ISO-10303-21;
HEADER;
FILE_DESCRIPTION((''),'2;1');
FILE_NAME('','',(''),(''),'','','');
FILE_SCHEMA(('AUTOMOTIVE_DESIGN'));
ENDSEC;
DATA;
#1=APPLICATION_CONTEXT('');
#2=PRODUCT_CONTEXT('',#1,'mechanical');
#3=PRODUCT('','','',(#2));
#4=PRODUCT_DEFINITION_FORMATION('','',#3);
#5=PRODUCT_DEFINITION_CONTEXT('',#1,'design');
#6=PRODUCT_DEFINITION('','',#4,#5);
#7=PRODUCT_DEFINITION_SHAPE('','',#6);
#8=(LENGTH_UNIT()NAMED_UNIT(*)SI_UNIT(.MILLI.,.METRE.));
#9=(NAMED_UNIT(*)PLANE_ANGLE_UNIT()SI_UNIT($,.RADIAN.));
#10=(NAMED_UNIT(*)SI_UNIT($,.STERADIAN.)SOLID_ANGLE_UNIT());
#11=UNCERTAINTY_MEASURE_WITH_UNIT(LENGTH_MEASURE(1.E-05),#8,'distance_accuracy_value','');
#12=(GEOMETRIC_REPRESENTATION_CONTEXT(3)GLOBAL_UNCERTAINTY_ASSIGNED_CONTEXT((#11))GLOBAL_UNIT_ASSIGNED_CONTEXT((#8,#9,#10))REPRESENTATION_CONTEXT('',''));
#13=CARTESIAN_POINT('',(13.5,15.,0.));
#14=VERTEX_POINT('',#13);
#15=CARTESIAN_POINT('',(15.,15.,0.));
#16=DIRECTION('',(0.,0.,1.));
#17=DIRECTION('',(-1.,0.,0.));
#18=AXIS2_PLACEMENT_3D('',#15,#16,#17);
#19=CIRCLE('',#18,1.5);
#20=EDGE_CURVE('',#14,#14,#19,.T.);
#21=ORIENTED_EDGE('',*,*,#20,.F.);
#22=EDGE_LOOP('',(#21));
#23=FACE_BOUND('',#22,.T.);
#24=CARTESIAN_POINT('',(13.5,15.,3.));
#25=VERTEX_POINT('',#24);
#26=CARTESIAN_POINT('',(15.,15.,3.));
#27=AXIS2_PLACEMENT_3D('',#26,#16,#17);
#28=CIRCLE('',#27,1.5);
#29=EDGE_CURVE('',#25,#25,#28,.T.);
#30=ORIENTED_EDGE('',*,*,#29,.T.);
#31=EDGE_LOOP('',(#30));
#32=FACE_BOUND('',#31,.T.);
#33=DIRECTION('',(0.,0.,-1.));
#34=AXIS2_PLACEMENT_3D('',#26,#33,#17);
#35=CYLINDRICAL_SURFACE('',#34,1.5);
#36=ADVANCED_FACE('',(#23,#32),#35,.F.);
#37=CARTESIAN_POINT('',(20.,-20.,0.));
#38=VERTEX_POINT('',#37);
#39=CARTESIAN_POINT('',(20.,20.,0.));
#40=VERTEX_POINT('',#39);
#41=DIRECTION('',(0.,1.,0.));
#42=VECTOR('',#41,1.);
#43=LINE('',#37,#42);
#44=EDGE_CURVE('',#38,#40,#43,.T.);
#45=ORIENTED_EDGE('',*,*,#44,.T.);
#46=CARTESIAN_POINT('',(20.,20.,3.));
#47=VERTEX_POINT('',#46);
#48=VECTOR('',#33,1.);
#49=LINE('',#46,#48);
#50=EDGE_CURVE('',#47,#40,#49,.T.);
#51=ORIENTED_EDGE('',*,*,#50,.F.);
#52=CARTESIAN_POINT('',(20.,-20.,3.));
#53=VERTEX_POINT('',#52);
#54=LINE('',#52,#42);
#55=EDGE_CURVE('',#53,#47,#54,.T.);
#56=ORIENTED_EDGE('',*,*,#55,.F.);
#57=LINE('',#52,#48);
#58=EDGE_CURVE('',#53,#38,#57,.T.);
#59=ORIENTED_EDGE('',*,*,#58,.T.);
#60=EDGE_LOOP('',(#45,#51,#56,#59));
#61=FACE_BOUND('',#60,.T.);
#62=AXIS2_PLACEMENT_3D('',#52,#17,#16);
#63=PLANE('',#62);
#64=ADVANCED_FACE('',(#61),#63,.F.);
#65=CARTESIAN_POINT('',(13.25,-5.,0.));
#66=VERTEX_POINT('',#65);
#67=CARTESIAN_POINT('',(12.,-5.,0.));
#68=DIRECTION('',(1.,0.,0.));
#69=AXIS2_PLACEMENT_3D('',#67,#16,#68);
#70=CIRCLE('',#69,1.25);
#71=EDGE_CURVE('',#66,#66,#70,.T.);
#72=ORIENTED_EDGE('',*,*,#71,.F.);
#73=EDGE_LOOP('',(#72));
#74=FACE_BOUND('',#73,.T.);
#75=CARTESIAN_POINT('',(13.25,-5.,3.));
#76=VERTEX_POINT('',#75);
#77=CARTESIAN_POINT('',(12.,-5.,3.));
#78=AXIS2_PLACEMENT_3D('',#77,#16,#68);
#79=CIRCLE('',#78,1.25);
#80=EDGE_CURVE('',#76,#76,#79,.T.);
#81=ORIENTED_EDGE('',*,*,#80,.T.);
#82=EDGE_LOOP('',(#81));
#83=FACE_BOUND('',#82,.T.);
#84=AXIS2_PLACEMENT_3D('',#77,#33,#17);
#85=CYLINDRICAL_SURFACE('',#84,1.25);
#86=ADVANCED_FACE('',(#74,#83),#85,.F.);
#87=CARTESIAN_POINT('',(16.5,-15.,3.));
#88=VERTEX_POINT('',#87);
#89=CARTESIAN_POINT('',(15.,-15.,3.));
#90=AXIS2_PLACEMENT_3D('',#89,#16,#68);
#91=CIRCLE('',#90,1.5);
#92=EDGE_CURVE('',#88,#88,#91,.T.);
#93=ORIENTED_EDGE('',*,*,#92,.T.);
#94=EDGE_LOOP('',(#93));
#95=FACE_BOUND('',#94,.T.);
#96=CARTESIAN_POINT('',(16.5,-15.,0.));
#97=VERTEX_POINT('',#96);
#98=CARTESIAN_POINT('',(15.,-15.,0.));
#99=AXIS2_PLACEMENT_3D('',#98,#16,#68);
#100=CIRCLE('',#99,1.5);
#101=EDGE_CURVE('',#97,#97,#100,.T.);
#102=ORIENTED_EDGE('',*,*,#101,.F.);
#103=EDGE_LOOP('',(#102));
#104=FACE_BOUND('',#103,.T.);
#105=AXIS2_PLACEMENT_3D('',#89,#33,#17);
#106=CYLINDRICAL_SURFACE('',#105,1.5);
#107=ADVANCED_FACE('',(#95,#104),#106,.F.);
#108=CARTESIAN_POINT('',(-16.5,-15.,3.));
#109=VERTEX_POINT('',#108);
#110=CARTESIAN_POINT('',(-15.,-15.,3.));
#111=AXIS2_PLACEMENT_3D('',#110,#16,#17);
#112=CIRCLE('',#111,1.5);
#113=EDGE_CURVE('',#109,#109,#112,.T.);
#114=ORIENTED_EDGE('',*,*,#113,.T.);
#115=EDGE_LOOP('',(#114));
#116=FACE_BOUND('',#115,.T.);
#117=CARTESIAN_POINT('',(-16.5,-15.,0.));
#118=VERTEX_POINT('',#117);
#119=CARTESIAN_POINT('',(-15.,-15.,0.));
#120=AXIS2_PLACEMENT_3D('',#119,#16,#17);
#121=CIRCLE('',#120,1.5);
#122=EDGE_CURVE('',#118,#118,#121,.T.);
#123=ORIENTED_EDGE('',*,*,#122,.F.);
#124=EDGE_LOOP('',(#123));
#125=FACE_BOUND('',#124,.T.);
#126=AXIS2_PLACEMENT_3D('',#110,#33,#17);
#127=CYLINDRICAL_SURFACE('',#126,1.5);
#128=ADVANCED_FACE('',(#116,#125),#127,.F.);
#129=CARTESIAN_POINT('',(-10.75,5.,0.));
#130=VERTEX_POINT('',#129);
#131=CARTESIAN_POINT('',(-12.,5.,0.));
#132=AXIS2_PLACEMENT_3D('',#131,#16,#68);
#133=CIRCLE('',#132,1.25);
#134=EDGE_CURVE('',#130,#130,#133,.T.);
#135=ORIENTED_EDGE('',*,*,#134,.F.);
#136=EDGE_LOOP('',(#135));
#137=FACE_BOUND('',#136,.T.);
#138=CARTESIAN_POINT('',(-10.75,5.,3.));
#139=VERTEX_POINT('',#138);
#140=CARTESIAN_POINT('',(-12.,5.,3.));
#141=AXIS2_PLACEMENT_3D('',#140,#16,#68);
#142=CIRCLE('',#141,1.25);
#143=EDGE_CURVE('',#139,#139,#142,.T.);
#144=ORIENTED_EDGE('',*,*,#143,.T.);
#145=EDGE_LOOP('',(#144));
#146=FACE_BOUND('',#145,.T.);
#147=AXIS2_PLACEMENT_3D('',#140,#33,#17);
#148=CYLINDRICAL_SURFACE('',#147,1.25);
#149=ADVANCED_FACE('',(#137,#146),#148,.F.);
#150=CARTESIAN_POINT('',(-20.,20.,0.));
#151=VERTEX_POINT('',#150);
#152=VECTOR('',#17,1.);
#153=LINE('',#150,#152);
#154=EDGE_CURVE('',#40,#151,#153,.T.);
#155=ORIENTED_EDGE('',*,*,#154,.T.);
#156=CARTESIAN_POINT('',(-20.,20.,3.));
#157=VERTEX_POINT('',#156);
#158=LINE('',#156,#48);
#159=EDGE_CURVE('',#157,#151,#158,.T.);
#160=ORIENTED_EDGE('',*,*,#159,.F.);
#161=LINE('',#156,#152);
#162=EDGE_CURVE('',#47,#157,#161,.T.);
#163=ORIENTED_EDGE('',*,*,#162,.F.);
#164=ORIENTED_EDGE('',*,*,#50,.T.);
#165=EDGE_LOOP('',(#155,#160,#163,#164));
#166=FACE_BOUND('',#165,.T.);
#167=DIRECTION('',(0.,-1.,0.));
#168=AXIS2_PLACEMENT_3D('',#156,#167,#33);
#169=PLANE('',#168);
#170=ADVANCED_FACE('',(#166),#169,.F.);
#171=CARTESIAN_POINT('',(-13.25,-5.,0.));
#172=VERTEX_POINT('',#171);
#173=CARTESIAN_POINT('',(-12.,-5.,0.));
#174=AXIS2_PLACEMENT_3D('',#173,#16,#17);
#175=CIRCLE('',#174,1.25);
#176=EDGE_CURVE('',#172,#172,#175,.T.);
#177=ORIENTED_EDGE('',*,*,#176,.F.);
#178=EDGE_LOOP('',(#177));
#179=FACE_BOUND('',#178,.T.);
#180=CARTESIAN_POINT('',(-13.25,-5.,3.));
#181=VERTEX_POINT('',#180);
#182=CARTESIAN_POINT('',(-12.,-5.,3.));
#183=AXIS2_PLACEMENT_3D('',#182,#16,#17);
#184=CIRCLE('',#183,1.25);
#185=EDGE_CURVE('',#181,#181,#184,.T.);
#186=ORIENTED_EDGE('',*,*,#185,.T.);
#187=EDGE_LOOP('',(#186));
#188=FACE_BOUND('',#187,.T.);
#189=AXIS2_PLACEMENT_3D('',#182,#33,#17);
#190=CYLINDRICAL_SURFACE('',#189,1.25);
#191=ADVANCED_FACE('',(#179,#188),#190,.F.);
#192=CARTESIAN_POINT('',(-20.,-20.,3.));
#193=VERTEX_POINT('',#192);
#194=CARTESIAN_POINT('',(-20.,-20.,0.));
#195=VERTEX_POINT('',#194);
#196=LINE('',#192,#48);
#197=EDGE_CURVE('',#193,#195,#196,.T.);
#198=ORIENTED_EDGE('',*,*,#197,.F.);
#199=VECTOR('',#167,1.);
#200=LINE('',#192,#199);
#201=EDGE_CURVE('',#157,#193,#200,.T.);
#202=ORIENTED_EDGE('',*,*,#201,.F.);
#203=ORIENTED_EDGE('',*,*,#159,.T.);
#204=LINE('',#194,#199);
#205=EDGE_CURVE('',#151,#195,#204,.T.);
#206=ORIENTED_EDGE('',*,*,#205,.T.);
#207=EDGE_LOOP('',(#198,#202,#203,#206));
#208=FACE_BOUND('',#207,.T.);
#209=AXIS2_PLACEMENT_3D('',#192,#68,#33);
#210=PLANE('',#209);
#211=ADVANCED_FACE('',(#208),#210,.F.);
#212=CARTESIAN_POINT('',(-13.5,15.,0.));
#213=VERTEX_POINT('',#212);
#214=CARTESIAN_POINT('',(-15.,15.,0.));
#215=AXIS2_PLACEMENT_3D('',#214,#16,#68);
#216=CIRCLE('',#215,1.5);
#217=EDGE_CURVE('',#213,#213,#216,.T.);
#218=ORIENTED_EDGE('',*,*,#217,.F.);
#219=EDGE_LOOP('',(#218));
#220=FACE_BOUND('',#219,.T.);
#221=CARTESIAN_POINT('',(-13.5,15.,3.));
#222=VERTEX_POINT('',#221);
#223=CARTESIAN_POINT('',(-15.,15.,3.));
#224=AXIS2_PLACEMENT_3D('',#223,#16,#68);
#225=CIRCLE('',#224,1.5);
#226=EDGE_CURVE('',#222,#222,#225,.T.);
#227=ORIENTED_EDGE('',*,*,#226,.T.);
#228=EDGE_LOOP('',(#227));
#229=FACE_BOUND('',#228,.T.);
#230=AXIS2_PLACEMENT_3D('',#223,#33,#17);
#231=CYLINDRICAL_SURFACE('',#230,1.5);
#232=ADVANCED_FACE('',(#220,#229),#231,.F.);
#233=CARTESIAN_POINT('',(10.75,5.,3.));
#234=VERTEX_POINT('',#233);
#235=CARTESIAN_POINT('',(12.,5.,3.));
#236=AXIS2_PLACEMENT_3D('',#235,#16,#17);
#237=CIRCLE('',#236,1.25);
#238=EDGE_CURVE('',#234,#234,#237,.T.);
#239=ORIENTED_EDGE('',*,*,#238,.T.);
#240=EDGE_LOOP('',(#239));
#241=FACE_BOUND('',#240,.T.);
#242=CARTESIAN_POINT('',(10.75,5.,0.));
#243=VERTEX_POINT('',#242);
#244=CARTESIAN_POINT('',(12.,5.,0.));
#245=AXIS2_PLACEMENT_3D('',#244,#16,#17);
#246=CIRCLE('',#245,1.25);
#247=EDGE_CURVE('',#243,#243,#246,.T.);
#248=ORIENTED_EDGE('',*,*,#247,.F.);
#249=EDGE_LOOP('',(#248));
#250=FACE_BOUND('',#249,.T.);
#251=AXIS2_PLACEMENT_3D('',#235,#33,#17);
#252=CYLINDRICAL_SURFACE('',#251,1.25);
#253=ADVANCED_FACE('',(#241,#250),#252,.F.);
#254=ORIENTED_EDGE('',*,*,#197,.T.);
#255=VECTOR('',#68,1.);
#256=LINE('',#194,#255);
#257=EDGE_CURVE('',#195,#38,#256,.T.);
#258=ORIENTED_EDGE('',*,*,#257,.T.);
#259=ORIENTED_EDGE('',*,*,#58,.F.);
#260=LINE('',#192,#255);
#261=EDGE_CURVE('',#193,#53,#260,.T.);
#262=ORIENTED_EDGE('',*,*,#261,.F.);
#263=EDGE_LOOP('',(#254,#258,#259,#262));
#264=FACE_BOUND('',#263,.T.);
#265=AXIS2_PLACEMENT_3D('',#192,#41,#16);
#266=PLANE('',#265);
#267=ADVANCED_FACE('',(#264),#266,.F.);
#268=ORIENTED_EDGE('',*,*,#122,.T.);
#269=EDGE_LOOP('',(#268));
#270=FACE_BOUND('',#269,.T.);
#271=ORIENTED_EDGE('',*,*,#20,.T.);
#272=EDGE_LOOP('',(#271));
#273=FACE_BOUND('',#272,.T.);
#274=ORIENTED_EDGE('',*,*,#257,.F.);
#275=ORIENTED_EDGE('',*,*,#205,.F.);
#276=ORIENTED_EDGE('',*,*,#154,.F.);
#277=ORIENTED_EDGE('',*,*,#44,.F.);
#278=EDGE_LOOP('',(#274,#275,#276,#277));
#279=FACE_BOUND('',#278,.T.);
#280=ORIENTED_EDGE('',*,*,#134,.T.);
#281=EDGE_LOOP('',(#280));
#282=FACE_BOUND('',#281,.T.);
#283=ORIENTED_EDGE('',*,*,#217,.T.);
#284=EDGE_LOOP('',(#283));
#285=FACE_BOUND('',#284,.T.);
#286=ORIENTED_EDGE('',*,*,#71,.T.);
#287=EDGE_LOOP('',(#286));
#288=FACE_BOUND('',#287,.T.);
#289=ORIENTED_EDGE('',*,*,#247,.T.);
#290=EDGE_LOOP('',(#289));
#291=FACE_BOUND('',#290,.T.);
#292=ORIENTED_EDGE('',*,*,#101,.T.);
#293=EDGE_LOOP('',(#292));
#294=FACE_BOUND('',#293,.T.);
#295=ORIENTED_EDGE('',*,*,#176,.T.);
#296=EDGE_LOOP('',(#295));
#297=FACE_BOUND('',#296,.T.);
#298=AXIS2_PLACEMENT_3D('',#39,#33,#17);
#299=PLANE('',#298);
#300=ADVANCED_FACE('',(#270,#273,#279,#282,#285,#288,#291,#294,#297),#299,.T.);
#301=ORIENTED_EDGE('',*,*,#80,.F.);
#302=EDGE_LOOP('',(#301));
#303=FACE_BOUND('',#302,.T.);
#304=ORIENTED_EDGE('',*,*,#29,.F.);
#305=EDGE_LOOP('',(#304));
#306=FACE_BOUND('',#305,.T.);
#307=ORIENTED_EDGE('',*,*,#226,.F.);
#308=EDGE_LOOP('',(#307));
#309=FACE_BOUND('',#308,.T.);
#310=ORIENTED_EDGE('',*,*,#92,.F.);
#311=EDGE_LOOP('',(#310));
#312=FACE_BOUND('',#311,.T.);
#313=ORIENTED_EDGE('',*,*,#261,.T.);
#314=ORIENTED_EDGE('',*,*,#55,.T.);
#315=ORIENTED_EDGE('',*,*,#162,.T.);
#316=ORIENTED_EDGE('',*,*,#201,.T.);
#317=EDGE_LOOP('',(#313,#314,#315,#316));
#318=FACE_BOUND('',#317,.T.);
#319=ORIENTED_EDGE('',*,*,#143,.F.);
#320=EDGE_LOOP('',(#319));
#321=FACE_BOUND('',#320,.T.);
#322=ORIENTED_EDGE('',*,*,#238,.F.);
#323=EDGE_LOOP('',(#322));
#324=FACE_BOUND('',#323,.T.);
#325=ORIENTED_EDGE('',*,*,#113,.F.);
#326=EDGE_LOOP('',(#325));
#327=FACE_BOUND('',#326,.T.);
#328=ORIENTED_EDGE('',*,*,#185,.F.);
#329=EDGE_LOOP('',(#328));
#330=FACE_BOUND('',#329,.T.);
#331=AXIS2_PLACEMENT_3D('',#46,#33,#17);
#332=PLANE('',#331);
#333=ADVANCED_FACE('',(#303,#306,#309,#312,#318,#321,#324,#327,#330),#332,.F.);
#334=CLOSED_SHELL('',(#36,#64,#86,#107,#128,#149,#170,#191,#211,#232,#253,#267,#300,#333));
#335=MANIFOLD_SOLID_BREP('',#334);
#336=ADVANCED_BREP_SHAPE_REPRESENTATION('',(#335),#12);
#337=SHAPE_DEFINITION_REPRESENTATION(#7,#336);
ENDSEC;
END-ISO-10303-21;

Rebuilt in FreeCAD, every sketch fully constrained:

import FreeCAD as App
import Part
import Sketcher

V = App.Vector

doc = App.newDocument("Part")
params = doc.addObject("Spreadsheet::Sheet", "Params")
for row, (alias, value) in enumerate([
    ("sketch1_diameter", "3 mm"),
    ("sketch1_diameter2", "2.5 mm"),
    ("sketch1_width", "40 mm"),
    ("pad1_length", "3 mm"),
], start=1):
    params.set(f"A{row}", alias)
    params.set(f"B{row}", "=" + value)
    params.setAlias(f"B{row}", alias)

body = doc.addObject("PartDesign::Body", "Body")

sketch1 = body.newObject("Sketcher::SketchObject", "Sketch")
sketch1.AttachmentSupport = (doc.getObject("XY_Plane"), [""])
sketch1.MapMode = "FlatFace"
sketch1.addGeometry(Part.LineSegment(V(-20, 20, 0), V(-20, -20, 0)), False)
sketch1.addGeometry(Part.LineSegment(V(-20, -20, 0), V(20, -20, 0)), False)
sketch1.addGeometry(Part.LineSegment(V(20, -20, 0), V(20, 20, 0)), False)
sketch1.addGeometry(Part.LineSegment(V(20, 20, 0), V(-20, 20, 0)), False)
sketch1.addGeometry(Part.Circle(V(-15, -15, 0), V(0, 0, 1), 1.5), False)
sketch1.addGeometry(Part.Circle(V(-12, -5, 0), V(0, 0, 1), 1.2), False)
sketch1.addGeometry(Part.Circle(V(15, -15, 0), V(0, 0, 1), 1.5), False)
sketch1.addGeometry(Part.Circle(V(12, -5, 0), V(0, 0, 1), 1.2), False)
sketch1.addGeometry(Part.Circle(V(-12, 5, 0), V(0, 0, 1), 1.2), False)
sketch1.addGeometry(Part.Circle(V(-15, 15, 0), V(0, 0, 1), 1.5), False)
sketch1.addGeometry(Part.Circle(V(12, 5, 0), V(0, 0, 1), 1.2), False)
sketch1.addGeometry(Part.Circle(V(15, 15, 0), V(0, 0, 1), 1.5), False)
sketch1.addConstraint(Sketcher.Constraint("Coincident", 0, 2, 1, 1))
sketch1.addConstraint(Sketcher.Constraint("Coincident", 1, 2, 2, 1))
sketch1.addConstraint(Sketcher.Constraint("Coincident", 2, 2, 3, 1))
sketch1.addConstraint(Sketcher.Constraint("Coincident", 3, 2, 0, 1))
sketch1.addConstraint(Sketcher.Constraint("Vertical", 0))
sketch1.addConstraint(Sketcher.Constraint("Horizontal", 1))
sketch1.addConstraint(Sketcher.Constraint("Vertical", 2))
sketch1.addConstraint(Sketcher.Constraint("Horizontal", 3))
sketch1.addConstraint(Sketcher.Constraint("Equal", 4, 6))
sketch1.addConstraint(Sketcher.Constraint("Equal", 5, 7))
sketch1.addConstraint(Sketcher.Constraint("Equal", 7, 8))
sketch1.addConstraint(Sketcher.Constraint("Equal", 6, 9))
sketch1.addConstraint(Sketcher.Constraint("Equal", 8, 10))
sketch1.addConstraint(Sketcher.Constraint("Equal", 9, 11))
sketch1.addConstraint(Sketcher.Constraint("Symmetric", 7, 3, 8, 3, -1, 1))
sketch1.addConstraint(Sketcher.Constraint("Symmetric", 6, 3, 9, 3, -1, 1))
sketch1.addConstraint(Sketcher.Constraint("Symmetric", 5, 3, 10, 3, -1, 1))
sketch1.addConstraint(Sketcher.Constraint("Symmetric", 4, 3, 11, 3, -1, 1))
sketch1.addConstraint(Sketcher.Constraint("Symmetric", 0, 2, 2, 2, -1, 1))
sketch1.addConstraint(Sketcher.Constraint("Symmetric", 4, 3, 6, 3, -2))
sketch1.addConstraint(Sketcher.Constraint("Symmetric", 5, 3, 7, 3, -2))
sketch1.addConstraint(Sketcher.Constraint("Equal", 3, 0))
sketch1.addConstraint(Sketcher.Constraint("Diameter", 4, 3.0))
sketch1.addConstraint(Sketcher.Constraint("Diameter", 5, 2.5))
sketch1.addConstraint(Sketcher.Constraint("DistanceX", 1, 1, 1, 2, 40.0))
sketch1.addConstraint(Sketcher.Constraint("DistanceX", 4, 3, -1, 1, 15.0))
sketch1.addConstraint(Sketcher.Constraint("DistanceY", 4, 3, -1, 1, 15.0))
sketch1.addConstraint(Sketcher.Constraint("DistanceX", 5, 3, -1, 1, 12.0))
sketch1.addConstraint(Sketcher.Constraint("DistanceY", 5, 3, -1, 1, 5.0))
sketch1.setExpression("Constraints[22]", "Params.sketch1_diameter")
sketch1.setExpression("Constraints[23]", "Params.sketch1_diameter2")
sketch1.setExpression("Constraints[24]", "Params.sketch1_width")
pad1 = body.newObject("PartDesign::Pad", "Pad")
pad1.Profile = sketch1
pad1.setExpression("Length", "Params.pad1_length")

doc.recompute()
